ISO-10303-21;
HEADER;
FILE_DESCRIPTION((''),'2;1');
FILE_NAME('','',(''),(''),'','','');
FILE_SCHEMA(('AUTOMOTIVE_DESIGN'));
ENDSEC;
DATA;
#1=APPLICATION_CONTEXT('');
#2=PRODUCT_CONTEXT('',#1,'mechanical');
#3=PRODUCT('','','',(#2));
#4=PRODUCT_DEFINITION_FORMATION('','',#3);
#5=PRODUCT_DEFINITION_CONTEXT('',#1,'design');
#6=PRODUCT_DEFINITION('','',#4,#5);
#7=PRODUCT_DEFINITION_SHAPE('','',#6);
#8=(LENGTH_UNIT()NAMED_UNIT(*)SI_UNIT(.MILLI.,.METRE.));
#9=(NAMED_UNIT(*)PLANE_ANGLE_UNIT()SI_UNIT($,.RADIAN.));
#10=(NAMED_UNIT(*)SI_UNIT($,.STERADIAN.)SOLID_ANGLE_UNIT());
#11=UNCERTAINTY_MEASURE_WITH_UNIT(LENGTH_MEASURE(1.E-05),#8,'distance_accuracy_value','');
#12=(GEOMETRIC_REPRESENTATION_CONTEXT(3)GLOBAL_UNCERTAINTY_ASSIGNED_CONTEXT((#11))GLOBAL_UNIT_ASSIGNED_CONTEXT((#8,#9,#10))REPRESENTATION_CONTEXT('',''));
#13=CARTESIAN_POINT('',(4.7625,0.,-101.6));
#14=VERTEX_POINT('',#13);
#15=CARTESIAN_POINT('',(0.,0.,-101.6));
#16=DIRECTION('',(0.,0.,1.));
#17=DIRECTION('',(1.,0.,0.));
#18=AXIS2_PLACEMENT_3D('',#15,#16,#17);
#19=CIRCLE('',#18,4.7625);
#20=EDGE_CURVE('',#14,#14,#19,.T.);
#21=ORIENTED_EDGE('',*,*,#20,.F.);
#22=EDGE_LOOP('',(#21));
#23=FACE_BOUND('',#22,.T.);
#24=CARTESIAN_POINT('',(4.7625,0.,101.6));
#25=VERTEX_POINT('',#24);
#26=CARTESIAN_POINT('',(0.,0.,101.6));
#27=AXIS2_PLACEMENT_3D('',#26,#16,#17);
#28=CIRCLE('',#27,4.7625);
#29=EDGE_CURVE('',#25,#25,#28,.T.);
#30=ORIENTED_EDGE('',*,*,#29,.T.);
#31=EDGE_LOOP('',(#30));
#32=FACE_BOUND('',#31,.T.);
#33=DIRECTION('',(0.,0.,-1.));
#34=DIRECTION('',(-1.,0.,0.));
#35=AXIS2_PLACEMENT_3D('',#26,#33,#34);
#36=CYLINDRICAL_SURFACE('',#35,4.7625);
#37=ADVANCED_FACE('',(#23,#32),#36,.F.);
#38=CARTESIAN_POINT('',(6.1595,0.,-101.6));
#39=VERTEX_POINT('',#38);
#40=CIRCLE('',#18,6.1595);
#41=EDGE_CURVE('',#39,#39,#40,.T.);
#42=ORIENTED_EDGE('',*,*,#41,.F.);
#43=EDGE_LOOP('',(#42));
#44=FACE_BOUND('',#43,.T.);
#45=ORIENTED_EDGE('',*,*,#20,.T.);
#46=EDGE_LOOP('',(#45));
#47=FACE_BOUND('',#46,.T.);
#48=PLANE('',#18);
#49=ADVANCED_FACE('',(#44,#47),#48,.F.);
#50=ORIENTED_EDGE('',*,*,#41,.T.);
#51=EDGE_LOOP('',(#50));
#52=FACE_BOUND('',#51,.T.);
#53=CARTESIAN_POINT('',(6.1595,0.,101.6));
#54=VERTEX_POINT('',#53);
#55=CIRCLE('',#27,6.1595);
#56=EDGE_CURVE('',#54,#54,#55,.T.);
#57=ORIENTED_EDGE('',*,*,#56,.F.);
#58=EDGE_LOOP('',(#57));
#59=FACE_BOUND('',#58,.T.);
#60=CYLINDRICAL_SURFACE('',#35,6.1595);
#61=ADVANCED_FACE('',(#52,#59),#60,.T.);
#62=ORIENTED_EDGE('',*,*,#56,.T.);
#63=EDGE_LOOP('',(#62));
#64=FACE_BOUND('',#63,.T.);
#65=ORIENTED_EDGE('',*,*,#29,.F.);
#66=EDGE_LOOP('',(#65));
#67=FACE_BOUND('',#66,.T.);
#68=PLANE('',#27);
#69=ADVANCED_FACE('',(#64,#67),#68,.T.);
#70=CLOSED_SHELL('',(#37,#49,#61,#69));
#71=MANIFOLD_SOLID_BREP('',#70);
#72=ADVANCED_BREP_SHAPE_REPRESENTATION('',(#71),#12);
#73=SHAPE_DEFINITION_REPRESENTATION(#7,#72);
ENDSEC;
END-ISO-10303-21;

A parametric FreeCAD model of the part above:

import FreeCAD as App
import Part
import Sketcher
Q = App.Units.Quantity

doc = App.newDocument("Part")
body = doc.addObject("PartDesign::Body", "Body")

# Sketch on XY plane
sketch1 = body.newObject("Sketcher::SketchObject", "Sketch")
sketch1.AttachmentSupport = (doc.getObject("XY_Plane"), [""])
sketch1.MapMode = "FlatFace"
sketch1.addGeometry([
    Part.Circle(App.Vector(0, 0, 0), App.Vector(0, 0, 1), 6.2),
    Part.Circle(App.Vector(0, 0, 0), App.Vector(0, 0, 1), 4.8),
], False)
sketch1.addConstraint([
    Sketcher.Constraint("Coincident", 0, 3, -1, 1),
    Sketcher.Constraint("Coincident", 1, 3, -1, 1),
    Sketcher.Constraint("Diameter", 0, Q("0.485 in")),
    Sketcher.Constraint("Diameter", 1, Q("0.375 in")),
])
pad1 = body.newObject("PartDesign::Pad", "Pad")
pad1.Profile = sketch1
pad1.Type = "TwoLengths"
pad1.Length = Q("4 in")
pad1.Length2 = Q("4 in")

doc.recompute()
